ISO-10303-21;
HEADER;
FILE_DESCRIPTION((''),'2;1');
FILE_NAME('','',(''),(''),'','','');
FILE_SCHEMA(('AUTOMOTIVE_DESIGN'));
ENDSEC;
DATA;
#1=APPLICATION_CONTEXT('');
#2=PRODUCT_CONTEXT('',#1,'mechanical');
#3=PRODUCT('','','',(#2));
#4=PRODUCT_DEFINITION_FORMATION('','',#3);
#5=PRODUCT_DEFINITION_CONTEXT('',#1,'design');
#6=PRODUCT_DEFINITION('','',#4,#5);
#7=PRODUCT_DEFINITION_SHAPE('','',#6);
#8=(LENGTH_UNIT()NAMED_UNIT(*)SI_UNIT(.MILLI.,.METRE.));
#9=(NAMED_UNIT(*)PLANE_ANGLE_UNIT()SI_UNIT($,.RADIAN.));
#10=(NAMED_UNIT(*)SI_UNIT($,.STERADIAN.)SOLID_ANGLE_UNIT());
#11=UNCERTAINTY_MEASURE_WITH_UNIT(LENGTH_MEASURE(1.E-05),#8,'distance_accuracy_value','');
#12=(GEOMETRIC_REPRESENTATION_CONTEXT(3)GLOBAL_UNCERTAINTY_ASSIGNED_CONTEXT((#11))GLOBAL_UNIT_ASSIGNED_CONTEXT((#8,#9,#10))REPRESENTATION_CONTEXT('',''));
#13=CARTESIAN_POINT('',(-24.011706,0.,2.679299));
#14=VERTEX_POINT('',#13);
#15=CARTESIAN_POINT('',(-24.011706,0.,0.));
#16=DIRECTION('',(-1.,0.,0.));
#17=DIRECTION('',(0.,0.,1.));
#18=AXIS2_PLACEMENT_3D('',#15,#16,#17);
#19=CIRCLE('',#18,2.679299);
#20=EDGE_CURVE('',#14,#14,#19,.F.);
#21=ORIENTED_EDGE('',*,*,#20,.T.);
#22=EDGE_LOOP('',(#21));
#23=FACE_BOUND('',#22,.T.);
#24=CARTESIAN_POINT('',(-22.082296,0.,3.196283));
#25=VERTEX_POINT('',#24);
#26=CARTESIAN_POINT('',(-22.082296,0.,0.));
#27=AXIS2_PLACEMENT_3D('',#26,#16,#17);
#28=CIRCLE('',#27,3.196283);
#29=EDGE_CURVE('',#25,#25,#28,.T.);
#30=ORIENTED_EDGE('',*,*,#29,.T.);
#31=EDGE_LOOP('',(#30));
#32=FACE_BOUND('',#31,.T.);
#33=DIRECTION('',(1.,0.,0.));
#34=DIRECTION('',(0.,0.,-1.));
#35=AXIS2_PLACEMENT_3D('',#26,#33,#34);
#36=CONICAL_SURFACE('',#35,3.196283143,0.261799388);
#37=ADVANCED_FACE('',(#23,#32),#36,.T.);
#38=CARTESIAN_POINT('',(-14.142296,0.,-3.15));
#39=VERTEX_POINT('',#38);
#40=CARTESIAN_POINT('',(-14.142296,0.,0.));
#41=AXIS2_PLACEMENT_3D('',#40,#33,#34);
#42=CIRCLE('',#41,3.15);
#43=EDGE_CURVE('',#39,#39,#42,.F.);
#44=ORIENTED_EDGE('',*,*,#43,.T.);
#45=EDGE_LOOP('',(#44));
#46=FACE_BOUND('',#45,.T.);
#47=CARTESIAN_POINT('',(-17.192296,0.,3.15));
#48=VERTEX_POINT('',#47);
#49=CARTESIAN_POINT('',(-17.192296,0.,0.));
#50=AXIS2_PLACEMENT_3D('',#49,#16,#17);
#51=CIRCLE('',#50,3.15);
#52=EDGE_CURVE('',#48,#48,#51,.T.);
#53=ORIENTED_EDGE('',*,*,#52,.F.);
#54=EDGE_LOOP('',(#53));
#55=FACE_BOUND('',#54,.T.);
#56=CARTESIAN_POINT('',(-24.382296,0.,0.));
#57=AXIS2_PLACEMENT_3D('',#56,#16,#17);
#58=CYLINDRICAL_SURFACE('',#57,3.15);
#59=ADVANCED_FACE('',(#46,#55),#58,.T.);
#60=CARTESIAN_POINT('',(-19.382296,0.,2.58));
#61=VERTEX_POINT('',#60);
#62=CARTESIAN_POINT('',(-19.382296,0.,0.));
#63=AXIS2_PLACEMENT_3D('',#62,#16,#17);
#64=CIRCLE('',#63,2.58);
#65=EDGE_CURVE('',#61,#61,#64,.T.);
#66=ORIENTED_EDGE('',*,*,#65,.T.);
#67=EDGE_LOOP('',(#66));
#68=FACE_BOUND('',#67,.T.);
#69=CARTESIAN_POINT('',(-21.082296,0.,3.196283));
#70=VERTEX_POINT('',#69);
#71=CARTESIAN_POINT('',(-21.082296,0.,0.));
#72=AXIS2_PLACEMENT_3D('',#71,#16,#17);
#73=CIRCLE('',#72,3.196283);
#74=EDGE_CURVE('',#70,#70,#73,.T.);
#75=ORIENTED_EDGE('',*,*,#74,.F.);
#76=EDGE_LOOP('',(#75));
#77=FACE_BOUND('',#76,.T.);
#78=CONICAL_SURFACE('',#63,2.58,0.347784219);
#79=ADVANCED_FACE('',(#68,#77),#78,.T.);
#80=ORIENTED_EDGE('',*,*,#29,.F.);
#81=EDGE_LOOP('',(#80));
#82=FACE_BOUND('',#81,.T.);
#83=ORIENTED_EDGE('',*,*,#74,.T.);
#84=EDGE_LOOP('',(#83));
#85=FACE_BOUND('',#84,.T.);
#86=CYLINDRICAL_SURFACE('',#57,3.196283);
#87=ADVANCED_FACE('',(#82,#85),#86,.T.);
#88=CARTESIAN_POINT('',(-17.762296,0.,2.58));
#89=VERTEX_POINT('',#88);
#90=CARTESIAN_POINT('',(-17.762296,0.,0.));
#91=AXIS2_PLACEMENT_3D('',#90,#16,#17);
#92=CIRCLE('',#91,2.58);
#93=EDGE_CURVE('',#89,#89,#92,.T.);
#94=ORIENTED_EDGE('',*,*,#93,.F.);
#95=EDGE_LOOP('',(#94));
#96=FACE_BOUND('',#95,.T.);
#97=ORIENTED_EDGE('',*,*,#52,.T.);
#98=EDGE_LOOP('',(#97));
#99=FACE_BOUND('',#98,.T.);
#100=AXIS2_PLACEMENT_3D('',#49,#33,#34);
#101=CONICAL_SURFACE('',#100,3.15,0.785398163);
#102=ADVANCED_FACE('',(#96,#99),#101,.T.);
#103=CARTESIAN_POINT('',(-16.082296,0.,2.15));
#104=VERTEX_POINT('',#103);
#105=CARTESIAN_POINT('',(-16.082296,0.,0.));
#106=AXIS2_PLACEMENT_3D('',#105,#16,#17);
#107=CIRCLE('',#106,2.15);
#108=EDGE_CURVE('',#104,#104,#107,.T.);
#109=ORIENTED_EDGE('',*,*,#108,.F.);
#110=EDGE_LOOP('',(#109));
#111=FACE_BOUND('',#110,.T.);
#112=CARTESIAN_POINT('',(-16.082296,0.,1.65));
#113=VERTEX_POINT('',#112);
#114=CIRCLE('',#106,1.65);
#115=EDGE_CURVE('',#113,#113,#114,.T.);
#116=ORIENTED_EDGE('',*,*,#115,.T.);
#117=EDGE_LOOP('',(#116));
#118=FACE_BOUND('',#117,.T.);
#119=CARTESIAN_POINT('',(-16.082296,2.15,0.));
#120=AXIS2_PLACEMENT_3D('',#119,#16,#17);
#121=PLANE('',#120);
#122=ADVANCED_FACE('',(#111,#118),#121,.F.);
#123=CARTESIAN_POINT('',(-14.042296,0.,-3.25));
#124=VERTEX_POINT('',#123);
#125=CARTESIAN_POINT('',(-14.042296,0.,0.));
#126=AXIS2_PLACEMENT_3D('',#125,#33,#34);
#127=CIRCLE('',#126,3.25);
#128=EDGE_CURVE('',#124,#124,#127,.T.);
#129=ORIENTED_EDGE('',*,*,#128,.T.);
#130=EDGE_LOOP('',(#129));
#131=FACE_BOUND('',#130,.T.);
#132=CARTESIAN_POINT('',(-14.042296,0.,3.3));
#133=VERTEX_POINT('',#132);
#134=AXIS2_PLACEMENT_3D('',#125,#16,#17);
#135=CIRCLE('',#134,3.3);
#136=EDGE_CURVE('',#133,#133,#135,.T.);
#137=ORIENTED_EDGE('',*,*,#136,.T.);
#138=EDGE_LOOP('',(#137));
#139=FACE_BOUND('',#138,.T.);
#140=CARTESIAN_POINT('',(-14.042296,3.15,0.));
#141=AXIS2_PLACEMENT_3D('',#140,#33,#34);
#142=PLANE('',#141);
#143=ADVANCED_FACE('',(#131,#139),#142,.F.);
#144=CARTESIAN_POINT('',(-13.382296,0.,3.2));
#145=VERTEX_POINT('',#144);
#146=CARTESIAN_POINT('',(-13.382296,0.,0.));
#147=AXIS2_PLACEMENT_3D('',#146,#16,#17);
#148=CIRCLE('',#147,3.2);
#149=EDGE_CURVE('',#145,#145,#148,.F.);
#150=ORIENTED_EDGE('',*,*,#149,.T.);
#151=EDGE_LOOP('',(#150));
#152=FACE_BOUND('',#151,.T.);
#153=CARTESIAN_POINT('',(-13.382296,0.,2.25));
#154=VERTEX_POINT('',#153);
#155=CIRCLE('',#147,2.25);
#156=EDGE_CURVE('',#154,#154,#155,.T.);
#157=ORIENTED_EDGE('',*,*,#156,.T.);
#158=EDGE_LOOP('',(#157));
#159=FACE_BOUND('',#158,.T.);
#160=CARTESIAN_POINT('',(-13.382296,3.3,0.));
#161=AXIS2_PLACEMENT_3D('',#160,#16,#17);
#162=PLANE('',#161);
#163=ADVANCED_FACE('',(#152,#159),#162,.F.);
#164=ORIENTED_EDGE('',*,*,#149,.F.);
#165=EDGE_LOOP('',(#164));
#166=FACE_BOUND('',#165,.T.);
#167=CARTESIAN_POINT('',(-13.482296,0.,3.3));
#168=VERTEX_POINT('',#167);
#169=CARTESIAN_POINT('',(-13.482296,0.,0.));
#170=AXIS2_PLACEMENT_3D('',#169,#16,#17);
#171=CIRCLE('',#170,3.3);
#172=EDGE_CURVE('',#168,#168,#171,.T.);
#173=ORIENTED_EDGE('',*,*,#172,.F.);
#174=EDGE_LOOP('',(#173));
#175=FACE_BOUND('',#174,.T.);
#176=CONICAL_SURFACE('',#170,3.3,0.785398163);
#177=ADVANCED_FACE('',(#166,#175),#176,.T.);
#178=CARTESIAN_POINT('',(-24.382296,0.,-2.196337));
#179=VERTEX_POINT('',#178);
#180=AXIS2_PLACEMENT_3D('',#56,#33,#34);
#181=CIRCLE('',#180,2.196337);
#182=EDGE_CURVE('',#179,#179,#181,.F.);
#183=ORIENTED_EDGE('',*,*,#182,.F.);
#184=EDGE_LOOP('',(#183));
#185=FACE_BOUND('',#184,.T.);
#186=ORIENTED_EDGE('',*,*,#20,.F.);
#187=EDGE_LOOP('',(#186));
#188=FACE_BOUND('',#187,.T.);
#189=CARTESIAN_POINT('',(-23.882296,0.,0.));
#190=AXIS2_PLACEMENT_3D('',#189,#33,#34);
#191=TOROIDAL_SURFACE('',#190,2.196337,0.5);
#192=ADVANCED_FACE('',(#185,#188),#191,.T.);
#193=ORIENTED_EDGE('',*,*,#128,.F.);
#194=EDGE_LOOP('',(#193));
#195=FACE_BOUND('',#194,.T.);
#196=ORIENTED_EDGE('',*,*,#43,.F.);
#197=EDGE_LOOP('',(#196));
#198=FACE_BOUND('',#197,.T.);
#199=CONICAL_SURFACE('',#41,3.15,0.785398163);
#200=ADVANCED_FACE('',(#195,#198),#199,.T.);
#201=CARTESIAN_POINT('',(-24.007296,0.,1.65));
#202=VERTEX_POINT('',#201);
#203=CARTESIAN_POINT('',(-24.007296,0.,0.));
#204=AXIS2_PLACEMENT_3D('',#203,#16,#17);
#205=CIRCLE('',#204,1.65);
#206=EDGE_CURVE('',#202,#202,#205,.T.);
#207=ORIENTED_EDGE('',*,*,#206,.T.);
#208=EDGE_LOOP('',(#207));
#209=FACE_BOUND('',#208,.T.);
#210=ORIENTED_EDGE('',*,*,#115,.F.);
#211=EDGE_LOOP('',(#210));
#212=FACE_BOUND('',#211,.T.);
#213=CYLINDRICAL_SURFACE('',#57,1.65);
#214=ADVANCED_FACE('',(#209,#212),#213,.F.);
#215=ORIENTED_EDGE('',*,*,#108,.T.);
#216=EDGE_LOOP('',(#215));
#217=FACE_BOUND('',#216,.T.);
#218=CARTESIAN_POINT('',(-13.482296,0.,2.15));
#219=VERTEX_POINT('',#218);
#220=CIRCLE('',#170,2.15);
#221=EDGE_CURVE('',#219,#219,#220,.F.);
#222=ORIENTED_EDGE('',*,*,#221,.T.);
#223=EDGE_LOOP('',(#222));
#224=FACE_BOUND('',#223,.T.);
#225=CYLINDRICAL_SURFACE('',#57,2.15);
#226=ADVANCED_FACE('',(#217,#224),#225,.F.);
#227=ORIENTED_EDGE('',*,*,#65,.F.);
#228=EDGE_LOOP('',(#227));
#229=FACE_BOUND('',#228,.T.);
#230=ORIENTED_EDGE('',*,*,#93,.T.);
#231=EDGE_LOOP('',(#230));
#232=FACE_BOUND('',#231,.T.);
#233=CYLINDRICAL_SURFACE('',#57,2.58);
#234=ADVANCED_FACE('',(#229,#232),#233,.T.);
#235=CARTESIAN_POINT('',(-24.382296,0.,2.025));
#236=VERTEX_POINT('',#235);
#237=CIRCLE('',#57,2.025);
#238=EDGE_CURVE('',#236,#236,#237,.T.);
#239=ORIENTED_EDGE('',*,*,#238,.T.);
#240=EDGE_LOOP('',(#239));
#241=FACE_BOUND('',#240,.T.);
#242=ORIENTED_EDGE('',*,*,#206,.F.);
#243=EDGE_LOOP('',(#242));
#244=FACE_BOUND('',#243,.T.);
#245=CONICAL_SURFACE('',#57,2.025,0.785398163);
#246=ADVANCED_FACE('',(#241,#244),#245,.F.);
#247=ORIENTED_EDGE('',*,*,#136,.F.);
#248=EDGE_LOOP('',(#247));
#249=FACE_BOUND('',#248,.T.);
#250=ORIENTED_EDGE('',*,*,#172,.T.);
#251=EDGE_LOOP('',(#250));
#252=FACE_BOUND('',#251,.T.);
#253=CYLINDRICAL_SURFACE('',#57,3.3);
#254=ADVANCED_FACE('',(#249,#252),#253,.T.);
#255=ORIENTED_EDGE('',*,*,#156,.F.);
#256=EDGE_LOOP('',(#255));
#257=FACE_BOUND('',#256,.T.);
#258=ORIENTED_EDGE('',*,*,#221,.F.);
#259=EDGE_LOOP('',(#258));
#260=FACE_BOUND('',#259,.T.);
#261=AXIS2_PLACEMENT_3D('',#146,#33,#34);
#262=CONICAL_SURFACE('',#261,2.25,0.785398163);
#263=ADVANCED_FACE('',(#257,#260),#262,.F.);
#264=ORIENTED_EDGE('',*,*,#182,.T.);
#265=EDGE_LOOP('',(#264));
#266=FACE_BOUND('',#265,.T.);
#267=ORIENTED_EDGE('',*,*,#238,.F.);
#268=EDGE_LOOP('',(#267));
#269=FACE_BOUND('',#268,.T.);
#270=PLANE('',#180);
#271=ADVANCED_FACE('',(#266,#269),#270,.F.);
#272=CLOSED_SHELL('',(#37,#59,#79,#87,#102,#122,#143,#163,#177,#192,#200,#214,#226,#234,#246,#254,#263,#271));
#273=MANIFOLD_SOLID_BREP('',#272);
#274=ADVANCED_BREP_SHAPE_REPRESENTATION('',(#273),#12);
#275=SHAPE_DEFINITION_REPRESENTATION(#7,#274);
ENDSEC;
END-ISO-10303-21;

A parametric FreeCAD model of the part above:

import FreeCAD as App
import Part
import Sketcher

V = App.Vector
Q = App.Units.Quantity


def edges_at(feature, points):
    """Names of the edges that pass closest to the given points."""
    edges = feature.Shape.Edges
    near = lambda p: min(range(len(edges)), key=lambda i: edges[i].distToShape(Part.Vertex(*p))[0])
    return sorted({f"Edge{near(p) + 1}" for p in points})

doc = App.newDocument("Part")
body = doc.addObject("PartDesign::Body", "Body")

# Sketch on XY plane
sketch1 = body.newObject("Sketcher::SketchObject", "Sketch")
sketch1.AttachmentSupport = (doc.getObject("XY_Plane"), [""])
sketch1.MapMode = "FlatFace"
sketch1.addGeometry(Part.LineSegment(V(-24.382296, 0, 0), V(-16.082296, 0, 0)), False)
sketch1.addGeometry(Part.LineSegment(V(-16.082296, 0, 0), V(-16.082296, 2.15, 0)), False)
sketch1.addGeometry(Part.LineSegment(V(-16.082296, 2.15, 0), V(-13.382296, 2.15, 0)), False)
sketch1.addGeometry(Part.LineSegment(V(-13.382296, 2.15, 0), V(-13.382296, 3.3, 0)), False)
sketch1.addGeometry(Part.LineSegment(V(-13.382296, 3.3, 0), V(-14.042296, 3.3, 0)), False)
sketch1.addGeometry(Part.LineSegment(V(-14.042296, 3.3, 0), V(-14.042296, 3.15, 0)), False)
sketch1.addGeometry(Part.LineSegment(V(-14.042296, 3.15, 0), V(-17.192296, 3.15, 0)), False)
sketch1.addGeometry(Part.LineSegment(V(-17.192296, 3.15, 0), V(-17.762296, 2.58, 0)), False)
sketch1.addGeometry(Part.LineSegment(V(-17.762296, 2.58, 0), V(-19.382296, 2.58, 0)), False)
sketch1.addGeometry(Part.LineSegment(V(-19.382296, 2.58, 0), V(-21.082296, 3.196283, 0)), False)
sketch1.addGeometry(Part.LineSegment(V(-21.082296, 3.196283, 0), V(-22.082296, 3.196283, 0)), False)
sketch1.addGeometry(Part.LineSegment(V(-22.082296, 3.196283, 0), V(-24.382296, 2.58, 0)), False)
sketch1.addGeometry(Part.LineSegment(V(-24.382296, 2.58, 0), V(-24.382296, 0, 0)), False)
sketch1.addConstraint(Sketcher.Constraint("Coincident", 0, 2, 1, 1))
sketch1.addConstraint(Sketcher.Constraint("Coincident", 1, 2, 2, 1))
sketch1.addConstraint(Sketcher.Constraint("Coincident", 2, 2, 3, 1))
sketch1.addConstraint(Sketcher.Constraint("Coincident", 3, 2, 4, 1))
sketch1.addConstraint(Sketcher.Constraint("Coincident", 4, 2, 5, 1))
sketch1.addConstraint(Sketcher.Constraint("Coincident", 5, 2, 6, 1))
sketch1.addConstraint(Sketcher.Constraint("Coincident", 6, 2, 7, 1))
sketch1.addConstraint(Sketcher.Constraint("Coincident", 7, 2, 8, 1))
sketch1.addConstraint(Sketcher.Constraint("Coincident", 8, 2, 9, 1))
sketch1.addConstraint(Sketcher.Constraint("Coincident", 9, 2, 10, 1))
sketch1.addConstraint(Sketcher.Constraint("Coincident", 10, 2, 11, 1))
sketch1.addConstraint(Sketcher.Constraint("Coincident", 11, 2, 12, 1))
sketch1.addConstraint(Sketcher.Constraint("Coincident", 12, 2, 0, 1))
sketch1.addConstraint(Sketcher.Constraint("Horizontal", 0))
sketch1.addConstraint(Sketcher.Constraint("Vertical", 1))
sketch1.addConstraint(Sketcher.Constraint("Horizontal", 2))
sketch1.addConstraint(Sketcher.Constraint("Vertical", 3))
sketch1.addConstraint(Sketcher.Constraint("Horizontal", 4))
sketch1.addConstraint(Sketcher.Constraint("Vertical", 5))
sketch1.addConstraint(Sketcher.Constraint("Horizontal", 6))
sketch1.addConstraint(Sketcher.Constraint("Horizontal", 8))
sketch1.addConstraint(Sketcher.Constraint("Horizontal", 10))
sketch1.addConstraint(Sketcher.Constraint("Vertical", 12))
sketch1.addConstraint(Sketcher.Constraint("PointOnObject", 0, 2, -1))
sketch1.addConstraint(Sketcher.Constraint("Horizontal", 8, 2, 11, 2))
sketch1.addConstraint(Sketcher.Constraint("DistanceX", 10, 2, 10, 1, Q("1 mm")))
sketch1.addConstraint(Sketcher.Constraint("Angle", 7, Q("-135 deg")))
sketch1.addConstraint(Sketcher.Constraint("Angle", 11, Q("-165 deg")))
sketch1.addConstraint(Sketcher.Constraint("DistanceX", 0, 1, 0, 2, Q("8.3 mm")))
sketch1.addConstraint(Sketcher.Constraint("DistanceX", 2, 1, 2, 2, Q("2.7 mm")))
sketch1.addConstraint(Sketcher.Constraint("DistanceY", 2, 2, 5, 2, Q("1 mm")))
sketch1.addConstraint(Sketcher.Constraint("DistanceX", 9, 2, 1, 2, Q("5 mm")))
sketch1.addConstraint(Sketcher.Constraint("DistanceX", 11, 2, 8, 2, Q("5 mm")))
sketch1.addConstraint(Sketcher.Constraint("DistanceX", 4, 2, 4, 1, Q("0.66 mm")))
sketch1.addConstraint(Sketcher.Constraint("DistanceX", 6, 2, 6, 1, Q("3.15 mm")))
sketch1.addConstraint(Sketcher.Constraint("DistanceX", 8, 2, 8, 1, Q("1.62 mm")))
sketch1.addConstraint(Sketcher.Constraint("DistanceY", 1, 1, 1, 2, Q("2.15 mm")))
sketch1.addConstraint(Sketcher.Constraint("DistanceY", 3, 1, 3, 2, Q("1.15 mm")))
sketch1.addConstraint(Sketcher.Constraint("DistanceX", 0, 2, -1, 1, Q("16.082296 mm")))
revolution = body.newObject("PartDesign::Revolution", "Revolution")
revolution.Profile = sketch1
revolution.ReferenceAxis = (sketch1, ["H_Axis"])
revolution.Angle = 360

# Sketch on YZ plane
sketch2 = body.newObject("Sketcher::SketchObject", "Sketch001")
sketch2.AttachmentSupport = (doc.getObject("YZ_Plane"), [""])
sketch2.MapMode = "FlatFace"
sketch2.AttachmentOffset = App.Placement(V(0, 0, -24.382296), App.Rotation())
sketch2.addGeometry(Part.Circle(V(0, 0, 0), V(0, 0, 1), 1.65), False)
sketch2.addConstraint(Sketcher.Constraint("Coincident", 0, 3, -1, 1))
sketch2.addConstraint(Sketcher.Constraint("Diameter", 0, Q("3.3 mm")))
doc.recompute()
hole = body.newObject("PartDesign::Hole", "Hole")
hole.Profile = sketch2
hole.ThreadType = "None"
hole.Diameter = 3.3
hole.DepthType = "ThroughAll"
hole.HoleCutType = "Countersink"
hole.HoleCutDiameter = 4.05
hole.HoleCutCountersinkAngle = 90
hole.Reversed = True
doc.recompute()

fillet = body.newObject("PartDesign::Fillet", "Fillet")
fillet.Base = (hole, edges_at(hole, [(-24.382, 0, -2.58)]))
fillet.Radius = 0.5
doc.recompute()

chamfer = body.newObject("PartDesign::Chamfer", "Chamfer")
chamfer.Base = (fillet, edges_at(fillet, [(-13.382, 0, -2.15), (-13.382, 0, -3.3), (-14.042, 0, -3.15)]))
chamfer.Size = 0.1

doc.recompute()
